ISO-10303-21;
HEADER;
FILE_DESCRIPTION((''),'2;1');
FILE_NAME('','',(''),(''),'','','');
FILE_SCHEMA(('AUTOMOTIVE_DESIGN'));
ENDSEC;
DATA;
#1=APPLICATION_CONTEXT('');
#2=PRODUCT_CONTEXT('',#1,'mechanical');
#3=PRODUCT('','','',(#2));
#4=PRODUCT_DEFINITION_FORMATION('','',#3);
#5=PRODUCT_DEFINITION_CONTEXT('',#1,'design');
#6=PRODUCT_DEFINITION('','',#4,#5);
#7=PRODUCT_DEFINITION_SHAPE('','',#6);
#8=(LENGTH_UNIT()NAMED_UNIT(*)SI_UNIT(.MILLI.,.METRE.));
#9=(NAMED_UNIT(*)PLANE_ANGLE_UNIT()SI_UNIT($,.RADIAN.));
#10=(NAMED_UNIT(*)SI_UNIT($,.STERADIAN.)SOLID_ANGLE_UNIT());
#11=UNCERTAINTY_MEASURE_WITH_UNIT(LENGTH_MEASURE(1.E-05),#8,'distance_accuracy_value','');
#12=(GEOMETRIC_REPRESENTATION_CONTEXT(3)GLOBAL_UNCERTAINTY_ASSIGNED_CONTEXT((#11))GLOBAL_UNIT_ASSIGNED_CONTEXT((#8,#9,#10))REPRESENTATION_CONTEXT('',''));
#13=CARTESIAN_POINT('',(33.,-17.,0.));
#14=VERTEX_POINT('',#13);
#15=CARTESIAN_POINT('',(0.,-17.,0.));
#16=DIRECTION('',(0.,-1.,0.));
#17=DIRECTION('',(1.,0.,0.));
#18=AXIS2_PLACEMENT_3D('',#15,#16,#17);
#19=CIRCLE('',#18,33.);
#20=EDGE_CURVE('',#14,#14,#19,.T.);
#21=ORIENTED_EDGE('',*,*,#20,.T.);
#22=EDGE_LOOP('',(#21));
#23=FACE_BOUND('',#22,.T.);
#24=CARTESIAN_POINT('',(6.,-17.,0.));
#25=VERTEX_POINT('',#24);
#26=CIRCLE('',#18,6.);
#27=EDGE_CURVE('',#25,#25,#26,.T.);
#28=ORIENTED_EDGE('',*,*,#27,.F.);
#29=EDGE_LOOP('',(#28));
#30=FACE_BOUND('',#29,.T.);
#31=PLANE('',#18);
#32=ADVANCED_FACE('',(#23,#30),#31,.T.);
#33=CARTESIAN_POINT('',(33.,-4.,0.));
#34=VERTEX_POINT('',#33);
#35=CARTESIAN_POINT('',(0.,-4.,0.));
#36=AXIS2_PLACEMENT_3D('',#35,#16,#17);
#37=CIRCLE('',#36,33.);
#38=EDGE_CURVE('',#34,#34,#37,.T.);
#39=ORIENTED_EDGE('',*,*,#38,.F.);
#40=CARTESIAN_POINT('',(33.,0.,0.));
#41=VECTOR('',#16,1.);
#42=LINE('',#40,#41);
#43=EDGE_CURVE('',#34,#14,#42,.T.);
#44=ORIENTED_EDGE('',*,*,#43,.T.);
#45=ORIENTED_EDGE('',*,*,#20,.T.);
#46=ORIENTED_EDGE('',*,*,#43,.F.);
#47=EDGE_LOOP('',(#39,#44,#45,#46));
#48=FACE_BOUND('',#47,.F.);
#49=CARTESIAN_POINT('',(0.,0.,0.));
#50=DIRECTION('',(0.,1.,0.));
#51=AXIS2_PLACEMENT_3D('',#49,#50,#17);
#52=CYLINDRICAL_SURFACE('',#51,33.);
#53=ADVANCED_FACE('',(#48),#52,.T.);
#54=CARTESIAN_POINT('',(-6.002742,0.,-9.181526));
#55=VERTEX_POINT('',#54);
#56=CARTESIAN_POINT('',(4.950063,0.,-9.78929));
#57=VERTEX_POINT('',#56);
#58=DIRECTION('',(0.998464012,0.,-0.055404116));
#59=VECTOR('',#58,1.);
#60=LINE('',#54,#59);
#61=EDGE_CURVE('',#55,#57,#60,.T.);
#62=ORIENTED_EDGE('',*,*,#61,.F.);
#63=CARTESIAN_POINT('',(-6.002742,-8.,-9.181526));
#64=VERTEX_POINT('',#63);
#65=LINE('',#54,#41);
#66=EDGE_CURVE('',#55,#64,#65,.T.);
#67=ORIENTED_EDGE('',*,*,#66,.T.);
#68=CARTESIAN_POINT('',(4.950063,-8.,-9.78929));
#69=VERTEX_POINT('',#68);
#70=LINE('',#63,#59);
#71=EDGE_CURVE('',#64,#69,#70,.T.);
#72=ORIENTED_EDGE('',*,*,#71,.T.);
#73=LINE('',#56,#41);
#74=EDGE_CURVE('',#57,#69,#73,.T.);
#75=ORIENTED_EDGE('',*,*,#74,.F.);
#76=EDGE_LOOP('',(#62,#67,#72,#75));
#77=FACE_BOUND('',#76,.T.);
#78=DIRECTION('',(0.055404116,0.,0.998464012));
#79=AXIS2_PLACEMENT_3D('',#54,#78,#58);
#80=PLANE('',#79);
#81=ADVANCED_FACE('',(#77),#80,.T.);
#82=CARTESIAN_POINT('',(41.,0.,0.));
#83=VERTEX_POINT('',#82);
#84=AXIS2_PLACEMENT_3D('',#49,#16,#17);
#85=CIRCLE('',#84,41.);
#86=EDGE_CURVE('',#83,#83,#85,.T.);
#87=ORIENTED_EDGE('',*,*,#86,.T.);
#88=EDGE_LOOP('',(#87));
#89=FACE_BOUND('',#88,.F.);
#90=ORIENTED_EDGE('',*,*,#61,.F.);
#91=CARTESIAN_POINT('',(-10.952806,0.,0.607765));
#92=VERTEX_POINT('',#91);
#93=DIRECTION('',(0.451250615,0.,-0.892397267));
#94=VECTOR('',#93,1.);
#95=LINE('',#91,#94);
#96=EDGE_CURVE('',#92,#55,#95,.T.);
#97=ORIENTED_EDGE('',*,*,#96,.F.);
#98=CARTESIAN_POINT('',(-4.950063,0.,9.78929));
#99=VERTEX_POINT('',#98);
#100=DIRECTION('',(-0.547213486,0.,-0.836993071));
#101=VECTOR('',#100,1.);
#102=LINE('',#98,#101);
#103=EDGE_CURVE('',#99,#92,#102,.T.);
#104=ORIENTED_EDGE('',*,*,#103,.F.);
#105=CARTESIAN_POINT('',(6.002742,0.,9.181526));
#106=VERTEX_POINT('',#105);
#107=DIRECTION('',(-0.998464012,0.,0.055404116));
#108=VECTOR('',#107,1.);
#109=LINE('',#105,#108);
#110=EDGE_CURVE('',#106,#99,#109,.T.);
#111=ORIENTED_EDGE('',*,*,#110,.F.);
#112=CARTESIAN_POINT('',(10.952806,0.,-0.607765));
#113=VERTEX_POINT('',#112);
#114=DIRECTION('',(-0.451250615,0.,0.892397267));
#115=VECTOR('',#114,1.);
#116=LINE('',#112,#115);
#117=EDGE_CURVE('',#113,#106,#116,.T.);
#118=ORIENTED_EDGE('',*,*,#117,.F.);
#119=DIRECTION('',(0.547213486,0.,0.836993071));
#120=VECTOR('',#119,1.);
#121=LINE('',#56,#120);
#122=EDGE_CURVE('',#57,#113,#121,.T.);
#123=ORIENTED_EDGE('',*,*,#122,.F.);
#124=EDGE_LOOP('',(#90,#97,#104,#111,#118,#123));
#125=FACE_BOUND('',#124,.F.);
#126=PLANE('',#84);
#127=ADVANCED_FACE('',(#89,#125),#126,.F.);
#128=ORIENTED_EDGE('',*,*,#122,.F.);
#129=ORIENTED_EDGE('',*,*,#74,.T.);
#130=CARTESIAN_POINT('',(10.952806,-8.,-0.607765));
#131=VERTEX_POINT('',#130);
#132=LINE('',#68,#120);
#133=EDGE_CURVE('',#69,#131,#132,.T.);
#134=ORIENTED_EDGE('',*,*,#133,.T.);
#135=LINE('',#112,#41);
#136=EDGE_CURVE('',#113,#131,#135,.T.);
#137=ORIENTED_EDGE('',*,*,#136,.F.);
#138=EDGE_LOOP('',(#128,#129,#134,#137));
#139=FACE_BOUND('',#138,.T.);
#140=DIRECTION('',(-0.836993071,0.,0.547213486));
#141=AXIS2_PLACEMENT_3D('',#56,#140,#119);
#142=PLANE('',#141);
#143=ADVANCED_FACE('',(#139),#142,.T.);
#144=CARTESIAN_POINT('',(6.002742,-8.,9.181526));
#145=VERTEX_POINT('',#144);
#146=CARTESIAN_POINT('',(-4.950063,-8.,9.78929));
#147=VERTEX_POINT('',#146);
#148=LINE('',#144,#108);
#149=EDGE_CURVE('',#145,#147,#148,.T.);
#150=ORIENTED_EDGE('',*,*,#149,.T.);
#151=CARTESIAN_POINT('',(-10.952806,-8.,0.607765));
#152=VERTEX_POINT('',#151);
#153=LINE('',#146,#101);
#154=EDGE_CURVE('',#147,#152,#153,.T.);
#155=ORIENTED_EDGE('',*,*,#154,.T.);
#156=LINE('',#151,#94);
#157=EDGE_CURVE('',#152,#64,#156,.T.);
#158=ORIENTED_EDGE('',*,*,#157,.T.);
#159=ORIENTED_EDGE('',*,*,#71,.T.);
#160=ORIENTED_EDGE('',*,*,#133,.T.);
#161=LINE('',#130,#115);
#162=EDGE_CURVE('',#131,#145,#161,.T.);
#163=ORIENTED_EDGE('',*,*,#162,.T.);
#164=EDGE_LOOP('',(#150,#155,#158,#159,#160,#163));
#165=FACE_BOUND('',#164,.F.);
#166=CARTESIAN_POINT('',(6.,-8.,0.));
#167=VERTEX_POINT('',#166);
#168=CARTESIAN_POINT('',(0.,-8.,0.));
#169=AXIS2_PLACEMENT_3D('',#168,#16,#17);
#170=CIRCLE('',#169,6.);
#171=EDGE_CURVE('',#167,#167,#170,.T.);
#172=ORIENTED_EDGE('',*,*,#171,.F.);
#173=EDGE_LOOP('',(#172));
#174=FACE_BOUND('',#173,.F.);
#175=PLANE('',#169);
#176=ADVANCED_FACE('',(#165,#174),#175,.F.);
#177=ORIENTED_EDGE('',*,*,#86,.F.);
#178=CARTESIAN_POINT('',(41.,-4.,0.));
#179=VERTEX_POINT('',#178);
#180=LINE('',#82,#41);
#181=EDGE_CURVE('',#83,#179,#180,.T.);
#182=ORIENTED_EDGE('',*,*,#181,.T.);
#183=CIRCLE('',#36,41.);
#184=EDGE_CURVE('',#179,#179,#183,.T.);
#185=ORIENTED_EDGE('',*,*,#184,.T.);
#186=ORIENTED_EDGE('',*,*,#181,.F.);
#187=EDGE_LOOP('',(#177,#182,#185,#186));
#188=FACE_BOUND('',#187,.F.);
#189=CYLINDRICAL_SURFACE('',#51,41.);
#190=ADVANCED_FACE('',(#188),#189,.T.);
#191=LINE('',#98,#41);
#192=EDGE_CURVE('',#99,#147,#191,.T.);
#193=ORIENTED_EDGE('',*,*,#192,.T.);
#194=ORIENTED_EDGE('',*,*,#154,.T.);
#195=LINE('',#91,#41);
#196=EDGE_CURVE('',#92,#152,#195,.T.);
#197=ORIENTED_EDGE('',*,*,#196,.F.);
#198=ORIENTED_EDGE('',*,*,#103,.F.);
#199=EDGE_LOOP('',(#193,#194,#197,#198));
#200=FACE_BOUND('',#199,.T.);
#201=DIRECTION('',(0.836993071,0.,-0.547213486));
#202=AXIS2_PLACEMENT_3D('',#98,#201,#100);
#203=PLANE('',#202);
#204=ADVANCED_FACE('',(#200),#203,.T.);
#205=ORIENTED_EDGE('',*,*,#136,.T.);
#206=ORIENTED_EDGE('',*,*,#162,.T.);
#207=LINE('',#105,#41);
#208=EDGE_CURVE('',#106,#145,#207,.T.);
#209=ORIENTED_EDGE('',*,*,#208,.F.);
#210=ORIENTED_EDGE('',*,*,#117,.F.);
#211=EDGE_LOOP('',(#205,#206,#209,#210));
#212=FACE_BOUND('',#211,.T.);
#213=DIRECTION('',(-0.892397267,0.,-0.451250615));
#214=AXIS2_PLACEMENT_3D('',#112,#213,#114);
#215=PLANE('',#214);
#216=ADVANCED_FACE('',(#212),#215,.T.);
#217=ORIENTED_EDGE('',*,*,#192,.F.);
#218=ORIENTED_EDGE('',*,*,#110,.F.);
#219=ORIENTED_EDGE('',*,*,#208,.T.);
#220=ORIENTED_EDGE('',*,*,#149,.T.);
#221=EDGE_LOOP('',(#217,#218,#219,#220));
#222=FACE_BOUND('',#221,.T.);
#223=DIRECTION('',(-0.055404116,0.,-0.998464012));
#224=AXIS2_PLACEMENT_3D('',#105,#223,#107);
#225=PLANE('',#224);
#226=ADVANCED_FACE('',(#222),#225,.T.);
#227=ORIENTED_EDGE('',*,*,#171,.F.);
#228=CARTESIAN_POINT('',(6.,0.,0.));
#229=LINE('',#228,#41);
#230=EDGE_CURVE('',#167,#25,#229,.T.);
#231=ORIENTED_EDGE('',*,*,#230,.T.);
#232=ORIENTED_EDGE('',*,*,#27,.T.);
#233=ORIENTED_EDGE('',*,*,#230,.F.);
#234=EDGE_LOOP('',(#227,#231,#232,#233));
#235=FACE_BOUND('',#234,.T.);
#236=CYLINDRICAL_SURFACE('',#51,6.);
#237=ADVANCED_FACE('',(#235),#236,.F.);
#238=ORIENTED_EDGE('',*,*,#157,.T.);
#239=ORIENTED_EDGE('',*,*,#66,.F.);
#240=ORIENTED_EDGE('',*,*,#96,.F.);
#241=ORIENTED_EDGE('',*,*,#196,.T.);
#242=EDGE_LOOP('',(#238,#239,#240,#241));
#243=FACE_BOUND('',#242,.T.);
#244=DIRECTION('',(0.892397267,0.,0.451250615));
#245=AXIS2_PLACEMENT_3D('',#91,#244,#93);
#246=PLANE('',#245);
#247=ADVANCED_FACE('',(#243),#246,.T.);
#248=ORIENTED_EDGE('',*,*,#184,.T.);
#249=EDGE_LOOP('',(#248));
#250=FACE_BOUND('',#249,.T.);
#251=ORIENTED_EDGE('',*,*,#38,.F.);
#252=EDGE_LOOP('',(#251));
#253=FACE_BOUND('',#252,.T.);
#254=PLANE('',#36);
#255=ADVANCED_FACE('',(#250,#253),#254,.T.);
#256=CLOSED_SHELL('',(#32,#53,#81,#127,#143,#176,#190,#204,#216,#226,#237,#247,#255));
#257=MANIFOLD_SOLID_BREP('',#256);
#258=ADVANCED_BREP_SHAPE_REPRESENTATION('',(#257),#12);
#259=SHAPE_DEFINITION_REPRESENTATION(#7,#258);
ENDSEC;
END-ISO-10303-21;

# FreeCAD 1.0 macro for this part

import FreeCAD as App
import Part
import Sketcher

V = App.Vector
Q = App.Units.Quantity


def add_polygon(sketch, points):
    """Adds a closed chain of lines whose ends are joined by coincident constraints."""
    first, n = sketch.GeometryCount, len(points)
    for a, b in zip(points, points[1:] + points[:1]):
        sketch.addGeometry(Part.LineSegment(App.Vector(*a, 0), App.Vector(*b, 0)), False)
    for i in range(n):
        sketch.addConstraint(Sketcher.Constraint("Coincident", first + i, 2, first + (i + 1) % n, 1))

doc = App.newDocument("Part")
params = doc.addObject("Spreadsheet::Sheet", "Params")
for row, (alias, value) in enumerate([
    ("sketch1_diameter", "82 mm"),
    ("sketch1_diameter2", "66 mm"),
    ("pad1_length", "4 mm"),
    ("sketch2_diameter", "66 mm"),
    ("sketch2_diameter2", "12 mm"),
    ("pad2_length", "17 mm"),
    ("sketch3_diameter", "12 mm"),
    ("pocket1_length", "8 mm"),
], start=1):
    params.set(f"A{row}", alias)
    params.set(f"B{row}", "=" + value)
    params.setAlias(f"B{row}", alias)

body = doc.addObject("PartDesign::Body", "Body")

sketch1 = body.newObject("Sketcher::SketchObject", "Sketch")
sketch1.AttachmentSupport = (doc.getObject("XZ_Plane"), [""])
sketch1.MapMode = "FlatFace"
sketch1.addGeometry(Part.Circle(V(0, 0, 0), V(0, 0, 1), 41), False)
sketch1.addGeometry(Part.Circle(V(0, 0, 0), V(0, 0, 1), 33), False)
sketch1.addConstraint(Sketcher.Constraint("Coincident", 0, 3, -1, 1))
sketch1.addConstraint(Sketcher.Constraint("Coincident", 1, 3, -1, 1))
sketch1.addConstraint(Sketcher.Constraint("Diameter", 0, Q("82 mm")))
sketch1.addConstraint(Sketcher.Constraint("Diameter", 1, Q("66 mm")))
sketch1.setExpression("Constraints[2]", "Params.sketch1_diameter")
sketch1.setExpression("Constraints[3]", "Params.sketch1_diameter2")
pad1 = body.newObject("PartDesign::Pad", "Pad")
pad1.Profile = sketch1
pad1.setExpression("Length", "Params.pad1_length")

sketch2 = body.newObject("Sketcher::SketchObject", "Sketch001")
sketch2.AttachmentSupport = (doc.getObject("XZ_Plane"), [""])
sketch2.MapMode = "FlatFace"
sketch2.addGeometry(Part.Circle(V(0, 0, 0), V(0, 0, 1), 33), False)
sketch2.addGeometry(Part.Circle(V(0, 0, 0), V(0, 0, 1), 6), False)
sketch2.addConstraint(Sketcher.Constraint("Coincident", 0, 3, -1, 1))
sketch2.addConstraint(Sketcher.Constraint("Coincident", 1, 3, -1, 1))
sketch2.addConstraint(Sketcher.Constraint("Diameter", 0, Q("66 mm")))
sketch2.addConstraint(Sketcher.Constraint("Diameter", 1, Q("12 mm")))
sketch2.setExpression("Constraints[2]", "Params.sketch2_diameter")
sketch2.setExpression("Constraints[3]", "Params.sketch2_diameter2")
pad2 = body.newObject("PartDesign::Pad", "Pad001")
pad2.Profile = sketch2
pad2.setExpression("Length", "Params.pad2_length")

sketch3 = body.newObject("Sketcher::SketchObject", "Sketch002")
sketch3.AttachmentSupport = (doc.getObject("XZ_Plane"), [""])
sketch3.MapMode = "FlatFace"
add_polygon(sketch3, [(-10.952806, 0.607765), (-6.002742, -9.181526), (4.950063, -9.78929), (10.952806, -0.607765), (6.002742, 9.181526), (-4.950063, 9.78929)])
sketch3.addGeometry(Part.Circle(V(0, 0, 0), V(0, 0, 1), 6), False)
sketch3.addConstraint(Sketcher.Constraint("Coincident", 6, 3, -1, 1))
sketch3.addConstraint(Sketcher.Constraint("Symmetric", 0, 2, 3, 2, -1, 1))
sketch3.addConstraint(Sketcher.Constraint("Symmetric", 1, 2, 4, 2, -1, 1))
sketch3.addConstraint(Sketcher.Constraint("Symmetric", 2, 2, 5, 2, -1, 1))
sketch3.addConstraint(Sketcher.Constraint("Equal", 0, 1))
sketch3.addConstraint(Sketcher.Constraint("Equal", 1, 2))
sketch3.addConstraint(Sketcher.Constraint("Diameter", 6, Q("12 mm")))
sketch3.addConstraint(Sketcher.Constraint("DistanceX", 0, 2, -1, 1, Q("6.002742 mm")))
sketch3.addConstraint(Sketcher.Constraint("DistanceY", 1, 2, -1, 1, Q("9.78929 mm")))
sketch3.addConstraint(Sketcher.Constraint("DistanceX", 0, 2, 2, 2, Q("16.955548 mm")))
sketch3.addConstraint(Sketcher.Constraint("DistanceY", 0, 2, 2, 2, Q("8.573761 mm")))
sketch3.setExpression("Constraints[12]", "Params.sketch3_diameter")
pocket1 = body.newObject("PartDesign::Pocket", "Pocket")
pocket1.Profile = sketch3
pocket1.setExpression("Length", "Params.pocket1_length")
pocket1.Reversed = True

doc.recompute()
